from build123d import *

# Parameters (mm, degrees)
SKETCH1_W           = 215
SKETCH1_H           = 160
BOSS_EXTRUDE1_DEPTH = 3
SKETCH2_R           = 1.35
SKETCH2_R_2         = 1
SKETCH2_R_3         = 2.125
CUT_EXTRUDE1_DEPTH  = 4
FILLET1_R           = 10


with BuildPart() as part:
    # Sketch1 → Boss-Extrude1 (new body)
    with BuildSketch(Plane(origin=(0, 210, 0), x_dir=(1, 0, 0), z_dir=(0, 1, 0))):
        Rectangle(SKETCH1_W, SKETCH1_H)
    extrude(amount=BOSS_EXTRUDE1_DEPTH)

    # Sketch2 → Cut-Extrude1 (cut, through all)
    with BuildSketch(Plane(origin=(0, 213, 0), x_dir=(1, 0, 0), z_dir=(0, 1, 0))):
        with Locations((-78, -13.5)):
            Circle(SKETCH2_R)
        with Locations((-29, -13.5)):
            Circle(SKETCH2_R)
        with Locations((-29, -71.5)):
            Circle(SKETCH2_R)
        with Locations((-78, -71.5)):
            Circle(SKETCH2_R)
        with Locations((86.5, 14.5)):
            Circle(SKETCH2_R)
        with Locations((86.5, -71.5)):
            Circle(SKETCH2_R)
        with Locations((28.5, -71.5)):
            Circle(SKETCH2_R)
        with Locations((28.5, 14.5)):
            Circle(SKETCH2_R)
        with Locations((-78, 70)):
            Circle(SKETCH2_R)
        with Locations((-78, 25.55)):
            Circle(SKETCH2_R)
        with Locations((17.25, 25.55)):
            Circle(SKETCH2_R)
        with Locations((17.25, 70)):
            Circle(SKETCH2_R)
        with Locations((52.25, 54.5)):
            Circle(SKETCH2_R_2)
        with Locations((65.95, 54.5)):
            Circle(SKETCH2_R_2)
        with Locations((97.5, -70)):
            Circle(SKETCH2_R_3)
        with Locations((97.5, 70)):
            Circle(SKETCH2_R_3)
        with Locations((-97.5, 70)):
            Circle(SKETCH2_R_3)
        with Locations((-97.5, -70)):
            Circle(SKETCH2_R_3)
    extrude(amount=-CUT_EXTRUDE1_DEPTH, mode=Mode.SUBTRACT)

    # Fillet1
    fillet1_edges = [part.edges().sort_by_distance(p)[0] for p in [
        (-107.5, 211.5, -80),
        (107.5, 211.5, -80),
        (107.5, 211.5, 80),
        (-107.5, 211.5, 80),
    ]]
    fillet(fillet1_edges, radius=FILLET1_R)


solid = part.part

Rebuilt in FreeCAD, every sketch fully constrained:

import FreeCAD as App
import Part
import Sketcher
from FreeCAD import Vector
Q = App.Units.Quantity


def edges_at(feature, points):
    """Names of the edges that pass closest to the given points."""
    edges = feature.Shape.Edges
    near = lambda p: min(range(len(edges)), key=lambda i: edges[i].distToShape(Part.Vertex(*p))[0])
    return sorted({f"Edge{near(p) + 1}" for p in points})

doc = App.newDocument("Part")
body = doc.addObject("PartDesign::Body", "Body")

# Sketch on XZ plane
sketch1 = body.newObject("Sketcher::SketchObject", "Sketch")
sketch1.AttachmentSupport = (doc.getObject("XZ_Plane"), [""])
sketch1.MapMode = "FlatFace"
sketch1.AttachmentOffset = App.Placement(Vector(0, 0, -210), App.Rotation())
sketch1.addGeometry(Part.LineSegment(Vector(-107.5, -80, 0), Vector(-107.5, 80, 0)), False)
sketch1.addGeometry(Part.LineSegment(Vector(-107.5, 80, 0), Vector(107.5, 80, 0)), False)
sketch1.addGeometry(Part.LineSegment(Vector(107.5, 80, 0), Vector(107.5, -80, 0)), False)
sketch1.addGeometry(Part.LineSegment(Vector(107.5, -80, 0), Vector(-107.5, -80, 0)), False)
sketch1.addConstraint(Sketcher.Constraint("Coincident", 0, 2, 1, 1))
sketch1.addConstraint(Sketcher.Constraint("Coincident", 1, 2, 2, 1))
sketch1.addConstraint(Sketcher.Constraint("Coincident", 2, 2, 3, 1))
sketch1.addConstraint(Sketcher.Constraint("Coincident", 3, 2, 0, 1))
sketch1.addConstraint(Sketcher.Constraint("Vertical", 0))
sketch1.addConstraint(Sketcher.Constraint("Horizontal", 1))
sketch1.addConstraint(Sketcher.Constraint("Vertical", 2))
sketch1.addConstraint(Sketcher.Constraint("Horizontal", 3))
sketch1.addConstraint(Sketcher.Constraint("Symmetric", 0, 2, 2, 2, -1, 1))
sketch1.addConstraint(Sketcher.Constraint("DistanceX", 1, 1, 1, 2, Q("215 mm")))
sketch1.addConstraint(Sketcher.Constraint("DistanceY", 0, 1, 0, 2, Q("160 mm")))
pad1 = body.newObject("PartDesign::Pad", "Pad")
pad1.Profile = sketch1
pad1.Length = 3
pad1.Reversed = True

# Sketch on XZ plane
sketch2 = body.newObject("Sketcher::SketchObject", "Sketch001")
sketch2.AttachmentSupport = (doc.getObject("XZ_Plane"), [""])
sketch2.MapMode = "FlatFace"
sketch2.AttachmentOffset = App.Placement(Vector(0, 0, -213), App.Rotation())
sketch2.addGeometry(Part.Circle(Vector(-78, 13.5, 0), Vector(0, 0, 1), 1.35), False)
sketch2.addGeometry(Part.Circle(Vector(-29, 13.5, 0), Vector(0, 0, 1), 1.35), False)
sketch2.addGeometry(Part.Circle(Vector(-29, 71.5, 0), Vector(0, 0, 1), 1.35), False)
sketch2.addGeometry(Part.Circle(Vector(-78, 71.5, 0), Vector(0, 0, 1), 1.35), False)
sketch2.addGeometry(Part.Circle(Vector(86.5, -14.5, 0), Vector(0, 0, 1), 1.35), False)
sketch2.addGeometry(Part.Circle(Vector(86.5, 71.5, 0), Vector(0, 0, 1), 1.35), False)
sketch2.addGeometry(Part.Circle(Vector(28.5, 71.5, 0), Vector(0, 0, 1), 1.35), False)
sketch2.addGeometry(Part.Circle(Vector(28.5, -14.5, 0), Vector(0, 0, 1), 1.35), False)
sketch2.addGeometry(Part.Circle(Vector(-78, -70, 0), Vector(0, 0, 1), 1.35), False)
sketch2.addGeometry(Part.Circle(Vector(-78, -25.55, 0), Vector(0, 0, 1), 1.35), False)
sketch2.addGeometry(Part.Circle(Vector(17.25, -25.55, 0), Vector(0, 0, 1), 1.35), False)
sketch2.addGeometry(Part.Circle(Vector(17.25, -70, 0), Vector(0, 0, 1), 1.35), False)
sketch2.addGeometry(Part.Circle(Vector(52.25, -54.5, 0), Vector(0, 0, 1), 1), False)
sketch2.addGeometry(Part.Circle(Vector(65.95, -54.5, 0), Vector(0, 0, 1), 1), False)
sketch2.addGeometry(Part.Circle(Vector(97.5, 70, 0), Vector(0, 0, 1), 2.125), False)
sketch2.addGeometry(Part.Circle(Vector(97.5, -70, 0), Vector(0, 0, 1), 2.125), False)
sketch2.addGeometry(Part.Circle(Vector(-97.5, -70, 0), Vector(0, 0, 1), 2.125), False)
sketch2.addGeometry(Part.Circle(Vector(-97.5, 70, 0), Vector(0, 0, 1), 2.125), False)
sketch2.addConstraint(Sketcher.Constraint("Equal", 0, 1))
sketch2.addConstraint(Sketcher.Constraint("Equal", 1, 2))
sketch2.addConstraint(Sketcher.Constraint("Equal", 2, 3))
sketch2.addConstraint(Sketcher.Constraint("Equal", 3, 4))
sketch2.addConstraint(Sketcher.Constraint("Equal", 4, 5))
sketch2.addConstraint(Sketcher.Constraint("Equal", 5, 6))
sketch2.addConstraint(Sketcher.Constraint("Equal", 6, 7))
sketch2.addConstraint(Sketcher.Constraint("Equal", 7, 8))
sketch2.addConstraint(Sketcher.Constraint("Equal", 8, 9))
sketch2.addConstraint(Sketcher.Constraint("Equal", 9, 10))
sketch2.addConstraint(Sketcher.Constraint("Equal", 10, 11))
sketch2.addConstraint(Sketcher.Constraint("Equal", 12, 13))
sketch2.addConstraint(Sketcher.Constraint("Equal", 14, 15))
sketch2.addConstraint(Sketcher.Constraint("Equal", 15, 16))
sketch2.addConstraint(Sketcher.Constraint("Equal", 16, 17))
sketch2.addConstraint(Sketcher.Constraint("Symmetric", 14, 3, 16, 3, -1, 1))
sketch2.addConstraint(Sketcher.Constraint("Symmetric", 15, 3, 17, 3, -1, 1))
sketch2.addConstraint(Sketcher.Constraint("Symmetric", 15, 3, 16, 3, -2))
sketch2.addConstraint(Sketcher.Constraint("Horizontal", 0, 3, 1, 3))
sketch2.addConstraint(Sketcher.Constraint("Horizontal", 2, 3, 3, 3))
sketch2.addConstraint(Sketcher.Constraint("Horizontal", 3, 3, 5, 3))
sketch2.addConstraint(Sketcher.Constraint("Horizontal", 5, 3, 6, 3))
sketch2.addConstraint(Sketcher.Constraint("Horizontal", 4, 3, 7, 3))
sketch2.addConstraint(Sketcher.Constraint("Horizontal", 9, 3, 10, 3))
sketch2.addConstraint(Sketcher.Constraint("Horizontal", 8, 3, 11, 3))
sketch2.addConstraint(Sketcher.Constraint("Horizontal", 12, 3, 13, 3))
sketch2.addConstraint(Sketcher.Constraint("Horizontal", 11, 3, 15, 3))
sketch2.addConstraint(Sketcher.Constraint("Vertical", 1, 3, 2, 3))
sketch2.addConstraint(Sketcher.Constraint("Vertical", 0, 3, 3, 3))
sketch2.addConstraint(Sketcher.Constraint("Vertical", 4, 3, 5, 3))
sketch2.addConstraint(Sketcher.Constraint("Vertical", 6, 3, 7, 3))
sketch2.addConstraint(Sketcher.Constraint("Vertical", 3, 3, 8, 3))
sketch2.addConstraint(Sketcher.Constraint("Vertical", 8, 3, 9, 3))
sketch2.addConstraint(Sketcher.Constraint("Vertical", 10, 3, 11, 3))
sketch2.addConstraint(Sketcher.Constraint("Diameter", 12, Q("2 mm")))
sketch2.addConstraint(Sketcher.Constraint("Diameter", 0, Q("2.7 mm")))
sketch2.addConstraint(Sketcher.Constraint("Diameter", 14, Q("4.25 mm")))
sketch2.addConstraint(Sketcher.Constraint("DistanceX", 0, 3, -1, 1, Q("78 mm")))
sketch2.addConstraint(Sketcher.Constraint("DistanceX", 1, 3, -1, 1, Q("29 mm")))
sketch2.addConstraint(Sketcher.Constraint("DistanceY", 8, 3, -1, 1, Q("70 mm")))
sketch2.addConstraint(Sketcher.Constraint("DistanceY", 1, 3, 2, 3, Q("58 mm")))
sketch2.addConstraint(Sketcher.Constraint("DistanceY", 4, 3, 1, 3, Q("28 mm")))
sketch2.addConstraint(Sketcher.Constraint("DistanceX", 6, 3, 5, 3, Q("58 mm")))
sketch2.addConstraint(Sketcher.Constraint("DistanceX", 11, 3, 12, 3, Q("35 mm")))
sketch2.addConstraint(Sketcher.Constraint("DistanceY", 12, 3, 7, 3, Q("40 mm")))
sketch2.addConstraint(Sketcher.Constraint("DistanceX", 5, 3, 14, 3, Q("11 mm")))
sketch2.addConstraint(Sketcher.Constraint("DistanceY", -1, 1, 0, 3, Q("13.5 mm")))
sketch2.addConstraint(Sketcher.Constraint("DistanceX", -1, 1, 4, 3, Q("86.5 mm")))
sketch2.addConstraint(Sketcher.Constraint("DistanceX", 12, 3, 13, 3, Q("13.7 mm")))
sketch2.addConstraint(Sketcher.Constraint("DistanceY", 9, 3, -1, 1, Q("25.55 mm")))
sketch2.addConstraint(Sketcher.Constraint("DistanceX", -1, 1, 10, 3, Q("17.25 mm")))
pocket1 = body.newObject("PartDesign::Pocket", "Pocket")
pocket1.Profile = sketch2
pocket1.Type = "ThroughAll"
pocket1.Reversed = True
doc.recompute()

fillet = body.newObject("PartDesign::Fillet", "Fillet")
fillet.Base = (pocket1, edges_at(pocket1, [
    (-107.5, 211.5, -80),
    (107.5, 211.5, -80),
    (107.5, 211.5, 80),
    (-107.5, 211.5, 80),
]))
fillet.Radius = 10

doc.recompute()
